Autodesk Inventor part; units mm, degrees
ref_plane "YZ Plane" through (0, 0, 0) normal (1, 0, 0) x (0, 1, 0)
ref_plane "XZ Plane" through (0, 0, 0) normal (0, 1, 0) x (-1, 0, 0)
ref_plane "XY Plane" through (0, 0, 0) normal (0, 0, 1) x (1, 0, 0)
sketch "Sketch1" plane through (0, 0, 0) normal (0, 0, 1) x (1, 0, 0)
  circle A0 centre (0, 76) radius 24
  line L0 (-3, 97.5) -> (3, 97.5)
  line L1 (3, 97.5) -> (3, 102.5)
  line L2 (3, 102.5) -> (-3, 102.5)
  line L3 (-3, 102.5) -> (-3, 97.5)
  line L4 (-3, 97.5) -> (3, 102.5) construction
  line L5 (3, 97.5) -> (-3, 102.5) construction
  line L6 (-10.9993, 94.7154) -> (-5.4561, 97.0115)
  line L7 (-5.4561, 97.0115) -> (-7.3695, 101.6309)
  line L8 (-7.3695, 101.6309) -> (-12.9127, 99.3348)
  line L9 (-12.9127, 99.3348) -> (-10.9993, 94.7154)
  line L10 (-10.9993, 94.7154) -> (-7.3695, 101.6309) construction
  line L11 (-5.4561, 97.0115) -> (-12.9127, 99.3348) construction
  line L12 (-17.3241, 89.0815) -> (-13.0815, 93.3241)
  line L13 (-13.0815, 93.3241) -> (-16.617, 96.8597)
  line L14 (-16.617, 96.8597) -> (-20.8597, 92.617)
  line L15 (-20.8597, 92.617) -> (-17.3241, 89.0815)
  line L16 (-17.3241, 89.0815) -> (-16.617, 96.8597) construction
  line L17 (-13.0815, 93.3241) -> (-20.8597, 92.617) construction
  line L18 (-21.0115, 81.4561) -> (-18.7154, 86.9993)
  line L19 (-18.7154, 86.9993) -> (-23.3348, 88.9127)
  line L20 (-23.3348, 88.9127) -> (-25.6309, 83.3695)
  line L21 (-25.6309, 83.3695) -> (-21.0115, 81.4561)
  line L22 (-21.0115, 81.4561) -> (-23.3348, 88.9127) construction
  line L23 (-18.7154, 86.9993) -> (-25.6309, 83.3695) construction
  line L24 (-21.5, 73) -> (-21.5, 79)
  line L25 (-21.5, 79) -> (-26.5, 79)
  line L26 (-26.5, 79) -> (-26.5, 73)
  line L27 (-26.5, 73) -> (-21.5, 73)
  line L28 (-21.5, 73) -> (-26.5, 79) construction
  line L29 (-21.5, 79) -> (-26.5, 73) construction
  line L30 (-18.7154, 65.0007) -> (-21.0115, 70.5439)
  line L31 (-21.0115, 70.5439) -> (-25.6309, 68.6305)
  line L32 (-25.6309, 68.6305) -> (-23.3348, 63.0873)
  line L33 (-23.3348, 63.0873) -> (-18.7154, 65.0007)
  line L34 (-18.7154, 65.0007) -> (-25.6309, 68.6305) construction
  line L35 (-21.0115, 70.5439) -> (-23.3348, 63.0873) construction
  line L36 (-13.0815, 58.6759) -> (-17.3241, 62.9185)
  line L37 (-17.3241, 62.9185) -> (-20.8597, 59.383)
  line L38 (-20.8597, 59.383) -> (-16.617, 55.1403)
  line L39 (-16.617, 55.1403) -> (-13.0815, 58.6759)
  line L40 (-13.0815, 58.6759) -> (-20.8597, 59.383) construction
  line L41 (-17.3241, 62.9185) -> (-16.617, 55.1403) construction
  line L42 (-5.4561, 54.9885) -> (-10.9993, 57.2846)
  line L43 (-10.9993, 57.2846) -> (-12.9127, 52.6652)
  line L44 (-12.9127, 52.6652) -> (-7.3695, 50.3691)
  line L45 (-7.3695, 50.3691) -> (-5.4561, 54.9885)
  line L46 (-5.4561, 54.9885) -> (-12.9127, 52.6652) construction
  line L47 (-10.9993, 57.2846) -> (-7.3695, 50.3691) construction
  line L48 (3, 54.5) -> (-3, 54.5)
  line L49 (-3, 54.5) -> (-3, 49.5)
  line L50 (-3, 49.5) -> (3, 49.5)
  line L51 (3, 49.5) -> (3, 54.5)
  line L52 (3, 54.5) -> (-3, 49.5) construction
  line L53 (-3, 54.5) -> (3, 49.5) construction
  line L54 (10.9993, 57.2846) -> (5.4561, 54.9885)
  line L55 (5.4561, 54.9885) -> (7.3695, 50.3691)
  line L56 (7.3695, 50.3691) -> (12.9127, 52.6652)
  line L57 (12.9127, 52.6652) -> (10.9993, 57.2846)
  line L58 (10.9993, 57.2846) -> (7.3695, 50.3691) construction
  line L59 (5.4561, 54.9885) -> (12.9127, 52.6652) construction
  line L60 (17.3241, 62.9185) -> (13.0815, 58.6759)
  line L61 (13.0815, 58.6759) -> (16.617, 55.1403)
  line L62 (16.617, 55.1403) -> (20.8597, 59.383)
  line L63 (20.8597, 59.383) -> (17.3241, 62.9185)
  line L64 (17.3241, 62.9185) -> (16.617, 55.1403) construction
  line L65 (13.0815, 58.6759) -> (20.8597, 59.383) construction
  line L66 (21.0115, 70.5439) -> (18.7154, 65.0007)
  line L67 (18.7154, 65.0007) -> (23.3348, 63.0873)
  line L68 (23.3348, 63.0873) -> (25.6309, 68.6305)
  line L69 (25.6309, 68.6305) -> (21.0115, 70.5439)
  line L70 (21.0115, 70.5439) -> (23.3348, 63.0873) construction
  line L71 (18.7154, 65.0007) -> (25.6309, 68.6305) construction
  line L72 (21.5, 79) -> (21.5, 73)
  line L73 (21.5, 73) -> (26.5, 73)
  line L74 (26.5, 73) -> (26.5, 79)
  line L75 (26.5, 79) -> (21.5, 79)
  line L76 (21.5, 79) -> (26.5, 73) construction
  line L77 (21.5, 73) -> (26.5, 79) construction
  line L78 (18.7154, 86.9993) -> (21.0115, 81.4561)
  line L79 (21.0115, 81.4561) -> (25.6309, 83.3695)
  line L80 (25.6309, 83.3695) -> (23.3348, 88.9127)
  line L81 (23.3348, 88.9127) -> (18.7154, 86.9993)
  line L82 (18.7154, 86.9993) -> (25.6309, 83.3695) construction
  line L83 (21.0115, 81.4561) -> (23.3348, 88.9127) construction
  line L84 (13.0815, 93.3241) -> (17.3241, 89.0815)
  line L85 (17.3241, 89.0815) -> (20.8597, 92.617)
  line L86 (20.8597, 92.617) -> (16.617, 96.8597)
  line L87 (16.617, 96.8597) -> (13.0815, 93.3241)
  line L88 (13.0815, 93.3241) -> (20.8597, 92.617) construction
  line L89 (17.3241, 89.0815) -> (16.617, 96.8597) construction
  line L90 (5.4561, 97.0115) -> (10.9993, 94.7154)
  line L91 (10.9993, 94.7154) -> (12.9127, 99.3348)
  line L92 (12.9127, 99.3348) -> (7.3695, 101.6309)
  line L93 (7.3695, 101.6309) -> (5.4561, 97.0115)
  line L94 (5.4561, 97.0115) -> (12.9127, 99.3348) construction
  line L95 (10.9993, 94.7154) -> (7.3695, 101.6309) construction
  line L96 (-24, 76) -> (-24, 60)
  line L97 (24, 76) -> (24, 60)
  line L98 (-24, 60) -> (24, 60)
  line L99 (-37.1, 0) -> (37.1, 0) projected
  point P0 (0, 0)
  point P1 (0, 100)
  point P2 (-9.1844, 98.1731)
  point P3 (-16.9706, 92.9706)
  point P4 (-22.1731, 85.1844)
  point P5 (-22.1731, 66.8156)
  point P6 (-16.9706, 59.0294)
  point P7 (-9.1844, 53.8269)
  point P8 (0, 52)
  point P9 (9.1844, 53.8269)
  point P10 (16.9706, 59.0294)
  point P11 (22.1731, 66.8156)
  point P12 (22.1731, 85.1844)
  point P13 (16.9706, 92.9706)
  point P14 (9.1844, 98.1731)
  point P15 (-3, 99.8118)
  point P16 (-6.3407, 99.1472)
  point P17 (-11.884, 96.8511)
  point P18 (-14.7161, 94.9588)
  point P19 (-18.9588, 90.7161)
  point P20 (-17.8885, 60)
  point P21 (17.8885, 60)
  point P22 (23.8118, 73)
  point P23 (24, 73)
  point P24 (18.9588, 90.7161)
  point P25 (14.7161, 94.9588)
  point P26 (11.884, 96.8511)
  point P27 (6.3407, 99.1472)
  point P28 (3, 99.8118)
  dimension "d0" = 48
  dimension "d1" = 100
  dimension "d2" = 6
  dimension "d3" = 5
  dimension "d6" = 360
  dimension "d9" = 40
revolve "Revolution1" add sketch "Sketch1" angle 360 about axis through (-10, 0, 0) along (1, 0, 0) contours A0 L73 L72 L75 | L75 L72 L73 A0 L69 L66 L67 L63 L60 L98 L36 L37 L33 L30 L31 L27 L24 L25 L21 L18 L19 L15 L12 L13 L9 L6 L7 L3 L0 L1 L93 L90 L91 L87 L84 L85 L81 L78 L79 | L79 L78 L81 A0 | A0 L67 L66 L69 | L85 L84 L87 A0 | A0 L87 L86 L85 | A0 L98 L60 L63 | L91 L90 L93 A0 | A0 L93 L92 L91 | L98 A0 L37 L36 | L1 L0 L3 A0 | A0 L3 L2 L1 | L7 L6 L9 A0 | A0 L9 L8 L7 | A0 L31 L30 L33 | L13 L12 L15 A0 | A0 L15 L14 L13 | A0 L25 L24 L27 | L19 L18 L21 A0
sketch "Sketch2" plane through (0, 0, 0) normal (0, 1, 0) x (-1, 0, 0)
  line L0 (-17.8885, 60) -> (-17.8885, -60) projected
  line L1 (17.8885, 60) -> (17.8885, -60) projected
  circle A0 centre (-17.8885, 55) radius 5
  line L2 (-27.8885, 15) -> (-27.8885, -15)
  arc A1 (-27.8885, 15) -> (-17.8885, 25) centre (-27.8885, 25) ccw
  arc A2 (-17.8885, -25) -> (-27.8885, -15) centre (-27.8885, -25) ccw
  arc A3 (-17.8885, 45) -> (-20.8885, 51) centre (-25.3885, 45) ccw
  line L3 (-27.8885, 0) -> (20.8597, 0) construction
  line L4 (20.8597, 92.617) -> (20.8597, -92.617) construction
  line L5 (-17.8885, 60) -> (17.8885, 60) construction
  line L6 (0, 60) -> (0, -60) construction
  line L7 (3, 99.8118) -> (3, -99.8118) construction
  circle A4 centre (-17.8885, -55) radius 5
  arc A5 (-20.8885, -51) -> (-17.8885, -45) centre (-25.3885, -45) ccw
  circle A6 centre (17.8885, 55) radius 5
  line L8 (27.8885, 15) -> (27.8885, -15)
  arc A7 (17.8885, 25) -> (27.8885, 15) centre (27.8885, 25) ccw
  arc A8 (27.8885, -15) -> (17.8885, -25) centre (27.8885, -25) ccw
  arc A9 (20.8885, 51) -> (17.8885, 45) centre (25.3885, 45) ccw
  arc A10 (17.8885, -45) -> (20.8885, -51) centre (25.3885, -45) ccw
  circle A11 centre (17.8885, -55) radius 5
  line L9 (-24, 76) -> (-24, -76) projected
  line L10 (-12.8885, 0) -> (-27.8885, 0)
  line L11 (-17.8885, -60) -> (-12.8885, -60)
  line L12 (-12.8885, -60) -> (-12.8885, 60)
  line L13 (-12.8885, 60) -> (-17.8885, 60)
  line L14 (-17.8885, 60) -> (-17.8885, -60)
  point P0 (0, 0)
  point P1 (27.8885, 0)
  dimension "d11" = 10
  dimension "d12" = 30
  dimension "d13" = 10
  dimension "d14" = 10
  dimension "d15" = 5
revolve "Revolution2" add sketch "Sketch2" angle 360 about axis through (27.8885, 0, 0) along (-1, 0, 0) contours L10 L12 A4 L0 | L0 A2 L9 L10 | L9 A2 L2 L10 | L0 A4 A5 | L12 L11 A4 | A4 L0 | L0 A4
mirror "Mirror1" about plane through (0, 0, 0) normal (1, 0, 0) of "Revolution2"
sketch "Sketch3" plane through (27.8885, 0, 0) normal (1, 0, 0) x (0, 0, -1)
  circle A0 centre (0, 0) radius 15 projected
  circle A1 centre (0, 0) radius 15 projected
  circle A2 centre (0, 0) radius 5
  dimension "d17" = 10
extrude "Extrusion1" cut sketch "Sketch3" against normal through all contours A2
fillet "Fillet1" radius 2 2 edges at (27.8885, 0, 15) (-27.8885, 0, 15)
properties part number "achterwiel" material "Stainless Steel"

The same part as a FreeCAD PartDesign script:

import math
import FreeCAD as App
import Part
import Sketcher
from FreeCAD import Vector
Q = App.Units.Quantity


def edges_at(feature, points):
    """Names of the edges that pass closest to the given points."""
    edges = feature.Shape.Edges
    near = lambda p: min(range(len(edges)), key=lambda i: edges[i].distToShape(Part.Vertex(*p))[0])
    return sorted({f"Edge{near(p) + 1}" for p in points})

doc = App.newDocument("Part")
body = doc.addObject("PartDesign::Body", "Body")

sketch1 = body.newObject("Sketcher::SketchObject", "Sketch")
sketch1.AttachmentSupport = (doc.getObject("XY_Plane"), [""])
sketch1.MapMode = "FlatFace"
sketch1.addGeometry(Part.LineSegment(Vector(18.958781, 90.716135, 0), Vector(20.8597, 92.617, 0)), False)
sketch1.addGeometry(Part.LineSegment(Vector(20.8597, 92.617, 0), Vector(16.617, 96.8597, 0)), False)
sketch1.addGeometry(Part.LineSegment(Vector(16.617, 96.8597, 0), Vector(14.716135, 94.958781, 0)), False)
sketch1.addGeometry(Part.ArcOfCircle(Part.Circle(Vector(0, 76, 0), Vector(0, 0, 1), 24), math.radians(52.180765), math.radians(60.319372)), False)
sketch1.addGeometry(Part.LineSegment(Vector(11.883959, 96.851176, 0), Vector(12.9127, 99.3348, 0)), False)
sketch1.addGeometry(Part.LineSegment(Vector(12.9127, 99.3348, 0), Vector(7.3695, 101.6309, 0)), False)
sketch1.addGeometry(Part.LineSegment(Vector(7.3695, 101.6309, 0), Vector(6.340746, 99.147245, 0)), False)
sketch1.addGeometry(Part.ArcOfCircle(Part.Circle(Vector(0, 76, 0), Vector(0, 0, 1), 24), math.radians(74.680711), math.radians(82.819244)), False)
sketch1.addGeometry(Part.LineSegment(Vector(3, 99.811762, 0), Vector(3, 102.5, 0)), False)
sketch1.addGeometry(Part.LineSegment(Vector(3, 102.5, 0), Vector(-3, 102.5, 0)), False)
sketch1.addGeometry(Part.LineSegment(Vector(-3, 102.5, 0), Vector(-3, 99.811762, 0)), False)
sketch1.addGeometry(Part.ArcOfCircle(Part.Circle(Vector(0, 76, 0), Vector(0, 0, 1), 24), math.radians(97.180756), math.radians(105.319289)), False)
sketch1.addGeometry(Part.LineSegment(Vector(-6.340746, 99.147245, 0), Vector(-7.3695, 101.6309, 0)), False)
sketch1.addGeometry(Part.LineSegment(Vector(-7.3695, 101.6309, 0), Vector(-12.9127, 99.3348, 0)), False)
sketch1.addGeometry(Part.LineSegment(Vector(-12.9127, 99.3348, 0), Vector(-11.883959, 96.851176, 0)), False)
sketch1.addGeometry(Part.ArcOfCircle(Part.Circle(Vector(0, 76, 0), Vector(0, 0, 1), 24), math.radians(119.680628), math.radians(127.819235)), False)
sketch1.addGeometry(Part.LineSegment(Vector(-14.716135, 94.958781, 0), Vector(-16.617, 96.8597, 0)), False)
sketch1.addGeometry(Part.LineSegment(Vector(-16.617, 96.8597, 0), Vector(-20.8597, 92.617, 0)), False)
sketch1.addGeometry(Part.LineSegment(Vector(-20.8597, 92.617, 0), Vector(-18.958781, 90.716135, 0)), False)
sketch1.addGeometry(Part.ArcOfCircle(Part.Circle(Vector(0, 76, 0), Vector(0, 0, 1), 24), math.radians(142.180765), math.radians(221.810315)), False)
sketch1.addGeometry(Part.LineSegment(Vector(-17.888544, 60, 0), Vector(17.888544, 60, 0)), False)
sketch1.addGeometry(Part.ArcOfCircle(Part.Circle(Vector(0, 76, 0), Vector(0, 0, 1), 24), math.radians(-41.810315), math.radians(37.819235)), False)
sketch1.addConstraint(Sketcher.Constraint("Coincident", 0, 2, 1, 1))
sketch1.addConstraint(Sketcher.Constraint("Coincident", 1, 2, 2, 1))
sketch1.addConstraint(Sketcher.Constraint("Coincident", 2, 2, 3, 1))
sketch1.addConstraint(Sketcher.Constraint("Coincident", 3, 2, 4, 1))
sketch1.addConstraint(Sketcher.Constraint("Coincident", 4, 2, 5, 1))
sketch1.addConstraint(Sketcher.Constraint("Coincident", 5, 2, 6, 1))
sketch1.addConstraint(Sketcher.Constraint("Coincident", 6, 2, 7, 1))
sketch1.addConstraint(Sketcher.Constraint("Coincident", 7, 2, 8, 1))
sketch1.addConstraint(Sketcher.Constraint("Coincident", 8, 2, 9, 1))
sketch1.addConstraint(Sketcher.Constraint("Coincident", 9, 2, 10, 1))
sketch1.addConstraint(Sketcher.Constraint("Coincident", 10, 2, 11, 1))
sketch1.addConstraint(Sketcher.Constraint("Coincident", 11, 2, 12, 1))
sketch1.addConstraint(Sketcher.Constraint("Coincident", 12, 2, 13, 1))
sketch1.addConstraint(Sketcher.Constraint("Coincident", 13, 2, 14, 1))
sketch1.addConstraint(Sketcher.Constraint("Coincident", 14, 2, 15, 1))
sketch1.addConstraint(Sketcher.Constraint("Coincident", 15, 2, 16, 1))
sketch1.addConstraint(Sketcher.Constraint("Coincident", 16, 2, 17, 1))
sketch1.addConstraint(Sketcher.Constraint("Coincident", 17, 2, 18, 1))
sketch1.addConstraint(Sketcher.Constraint("Coincident", 18, 2, 19, 1))
sketch1.addConstraint(Sketcher.Constraint("Coincident", 19, 2, 20, 1))
sketch1.addConstraint(Sketcher.Constraint("Coincident", 20, 2, 21, 1))
sketch1.addConstraint(Sketcher.Constraint("Coincident", 21, 2, 0, 1))
sketch1.addConstraint(Sketcher.Constraint("Vertical", 8))
sketch1.addConstraint(Sketcher.Constraint("Horizontal", 9))
sketch1.addConstraint(Sketcher.Constraint("Vertical", 10))
sketch1.addConstraint(Sketcher.Constraint("Horizontal", 20))
sketch1.addConstraint(Sketcher.Constraint("Coincident", 7, 3, 3, 3))
sketch1.addConstraint(Sketcher.Constraint("Coincident", 11, 3, 3, 3))
sketch1.addConstraint(Sketcher.Constraint("Coincident", 15, 3, 3, 3))
sketch1.addConstraint(Sketcher.Constraint("Coincident", 19, 3, 3, 3))
sketch1.addConstraint(Sketcher.Constraint("Coincident", 21, 3, 3, 3))
sketch1.addConstraint(Sketcher.Constraint("Equal", 3, 7))
sketch1.addConstraint(Sketcher.Constraint("Equal", 7, 11))
sketch1.addConstraint(Sketcher.Constraint("Equal", 11, 15))
sketch1.addConstraint(Sketcher.Constraint("Equal", 15, 19))
sketch1.addConstraint(Sketcher.Constraint("Equal", 19, 21))
sketch1.addConstraint(Sketcher.Constraint("Symmetric", 7, 2, 10, 2, -2))
sketch1.addConstraint(Sketcher.Constraint("Symmetric", 5, 2, 12, 2, -2))
sketch1.addConstraint(Sketcher.Constraint("Symmetric", 4, 2, 13, 2, -2))
sketch1.addConstraint(Sketcher.Constraint("Symmetric", 1, 2, 16, 2, -2))
sketch1.addConstraint(Sketcher.Constraint("Symmetric", 0, 2, 17, 2, -2))
sketch1.addConstraint(Sketcher.Constraint("Perpendicular", 0, 1))
sketch1.addConstraint(Sketcher.Constraint("Perpendicular", 1, 2))
sketch1.addConstraint(Sketcher.Constraint("Perpendicular", 4, 5))
sketch1.addConstraint(Sketcher.Constraint("Perpendicular", 5, 6))
sketch1.addConstraint(Sketcher.Constraint("Perpendicular", 12, 13))
sketch1.addConstraint(Sketcher.Constraint("Perpendicular", 13, 14))
sketch1.addConstraint(Sketcher.Constraint("Perpendicular", 2, 16))
sketch1.addConstraint(Sketcher.Constraint("Perpendicular", 16, 17))
sketch1.addConstraint(Sketcher.Constraint("Perpendicular", 17, 18))
sketch1.addConstraint(Sketcher.Constraint("Equal", 0, 2))
sketch1.addConstraint(Sketcher.Constraint("Equal", 2, 4))
sketch1.addConstraint(Sketcher.Constraint("Equal", 1, 5))
sketch1.addConstraint(Sketcher.Constraint("Equal", 4, 6))
sketch1.addConstraint(Sketcher.Constraint("Radius", 3, Q("24 mm")))
sketch1.addConstraint(Sketcher.Constraint("DistanceX", 9, 2, 9, 1, Q("6 mm")))
sketch1.addConstraint(Sketcher.Constraint("Distance", 1, Q("6 mm")))
sketch1.addConstraint(Sketcher.Constraint("DistanceY", -1, 1, 3, 3, Q("76 mm")))
sketch1.addConstraint(Sketcher.Constraint("DistanceY", -1, 1, 19, 2, Q("60 mm")))
sketch1.addConstraint(Sketcher.Constraint("Angle", 4, Q("67.5002 deg")))
sketch1.addConstraint(Sketcher.Constraint("DistanceY", -1, 1, 8, 2, Q("102.5 mm")))
sketch1.addConstraint(Sketcher.Constraint("DistanceY", -1, 1, 0, 2, Q("92.617 mm")))
revolution = body.newObject("PartDesign::Revolution", "Revolution")
revolution.Profile = sketch1
revolution.ReferenceAxis = (sketch1, ["H_Axis"])
revolution.Angle = 360

sketch2 = body.newObject("Sketcher::SketchObject", "Sketch001")
sketch2.AttachmentSupport = (doc.getObject("XZ_Plane"), [""])
sketch2.MapMode = "FlatFace"
sketch2.addGeometry(Part.LineSegment(Vector(12.8885, 0, 0), Vector(27.8885, 0, 0)), False)
sketch2.addGeometry(Part.LineSegment(Vector(27.8885, 0, 0), Vector(27.8885, -15, 0)), False)
sketch2.addGeometry(Part.ArcOfCircle(Part.Circle(Vector(27.8885, -25, 0), Vector(0, 0, 1), 10), math.radians(90), math.radians(180)), False)
sketch2.addGeometry(Part.LineSegment(Vector(17.8885, -25, 0), Vector(17.8885, -45, 0)), False)
sketch2.addGeometry(Part.ArcOfCircle(Part.Circle(Vector(25.3885, -45, 0), Vector(0, 0, 1), 7.5), math.radians(180), math.radians(233.130102)), False)
sketch2.addGeometry(Part.ArcOfCircle(Part.Circle(Vector(17.8885, -55, 0), Vector(0, 0, 1), 5), math.radians(-90), math.radians(53.130102)), False)
sketch2.addGeometry(Part.LineSegment(Vector(17.8885, -60, 0), Vector(12.8885, -60, 0)), False)
sketch2.addGeometry(Part.LineSegment(Vector(12.8885, -60, 0), Vector(12.8885, 0, 0)), False)
sketch2.addConstraint(Sketcher.Constraint("Coincident", 0, 2, 1, 1))
sketch2.addConstraint(Sketcher.Constraint("Coincident", 1, 2, 2, 1))
sketch2.addConstraint(Sketcher.Constraint("Tangent", 2, 2, 3, 1))
sketch2.addConstraint(Sketcher.Constraint("Tangent", 3, 2, 4, 1))
sketch2.addConstraint(Sketcher.Constraint("Tangent", 4, 2, 5, 2))
sketch2.addConstraint(Sketcher.Constraint("Tangent", 5, 1, 6, 1))
sketch2.addConstraint(Sketcher.Constraint("Coincident", 6, 2, 7, 1))
sketch2.addConstraint(Sketcher.Constraint("Coincident", 7, 2, 0, 1))
sketch2.addConstraint(Sketcher.Constraint("Horizontal", 0))
sketch2.addConstraint(Sketcher.Constraint("Vertical", 1))
sketch2.addConstraint(Sketcher.Constraint("Vertical", 3))
sketch2.addConstraint(Sketcher.Constraint("Horizontal", 6))
sketch2.addConstraint(Sketcher.Constraint("Vertical", 7))
sketch2.addConstraint(Sketcher.Constraint("PointOnObject", 0, 2, -1))
sketch2.addConstraint(Sketcher.Constraint("Vertical", 2, 3, 0, 2))
sketch2.addConstraint(Sketcher.Constraint("Vertical", 5, 3, 2, 2))
sketch2.addConstraint(Sketcher.Constraint("Equal", 0, 1))
sketch2.addConstraint(Sketcher.Constraint("Radius", 2, Q("10 mm")))
sketch2.addConstraint(Sketcher.Constraint("Radius", 5, Q("5 mm")))
sketch2.addConstraint(Sketcher.Constraint("DistanceX", 6, 2, 6, 1, Q("5 mm")))
sketch2.addConstraint(Sketcher.Constraint("DistanceY", 5, 3, 4, 3, Q("10 mm")))
sketch2.addConstraint(Sketcher.Constraint("DistanceY", 5, 3, 2, 3, Q("30 mm")))
sketch2.addConstraint(Sketcher.Constraint("DistanceX", -1, 1, 2, 3, Q("27.8885 mm")))
revolution2 = body.newObject("PartDesign::Revolution", "Revolution001")
revolution2.Profile = sketch2
revolution2.ReferenceAxis = (sketch2, ["H_Axis"])
revolution2.Angle = 360
doc.recompute()

mirrored = body.newObject("PartDesign::Mirrored", "Mirrored")
mirrored.Originals = [revolution2]
mirrored.MirrorPlane = (doc.getObject("YZ_Plane"), [""])
body.Tip = mirrored

sketch3 = body.newObject("Sketcher::SketchObject", "Sketch002")
sketch3.AttachmentSupport = (doc.getObject("YZ_Plane"), [""])
sketch3.MapMode = "FlatFace"
sketch3.AttachmentOffset = App.Placement(Vector(0, 0, 27.8885), App.Rotation())
sketch3.addGeometry(Part.Circle(Vector(0, 0, 0), Vector(0, 0, 1), 5), False)
sketch3.addConstraint(Sketcher.Constraint("Coincident", 0, 3, -1, 1))
sketch3.addConstraint(Sketcher.Constraint("Diameter", 0, Q("10 mm")))
pocket1 = body.newObject("PartDesign::Pocket", "Pocket")
pocket1.Profile = sketch3
pocket1.Type = "ThroughAll"
doc.recompute()

fillet = body.newObject("PartDesign::Fillet", "Fillet")
fillet.Base = (pocket1, edges_at(pocket1, [(27.889, 0, 15), (-27.889, 0, 15)]))
fillet.Radius = 2

doc.recompute()
